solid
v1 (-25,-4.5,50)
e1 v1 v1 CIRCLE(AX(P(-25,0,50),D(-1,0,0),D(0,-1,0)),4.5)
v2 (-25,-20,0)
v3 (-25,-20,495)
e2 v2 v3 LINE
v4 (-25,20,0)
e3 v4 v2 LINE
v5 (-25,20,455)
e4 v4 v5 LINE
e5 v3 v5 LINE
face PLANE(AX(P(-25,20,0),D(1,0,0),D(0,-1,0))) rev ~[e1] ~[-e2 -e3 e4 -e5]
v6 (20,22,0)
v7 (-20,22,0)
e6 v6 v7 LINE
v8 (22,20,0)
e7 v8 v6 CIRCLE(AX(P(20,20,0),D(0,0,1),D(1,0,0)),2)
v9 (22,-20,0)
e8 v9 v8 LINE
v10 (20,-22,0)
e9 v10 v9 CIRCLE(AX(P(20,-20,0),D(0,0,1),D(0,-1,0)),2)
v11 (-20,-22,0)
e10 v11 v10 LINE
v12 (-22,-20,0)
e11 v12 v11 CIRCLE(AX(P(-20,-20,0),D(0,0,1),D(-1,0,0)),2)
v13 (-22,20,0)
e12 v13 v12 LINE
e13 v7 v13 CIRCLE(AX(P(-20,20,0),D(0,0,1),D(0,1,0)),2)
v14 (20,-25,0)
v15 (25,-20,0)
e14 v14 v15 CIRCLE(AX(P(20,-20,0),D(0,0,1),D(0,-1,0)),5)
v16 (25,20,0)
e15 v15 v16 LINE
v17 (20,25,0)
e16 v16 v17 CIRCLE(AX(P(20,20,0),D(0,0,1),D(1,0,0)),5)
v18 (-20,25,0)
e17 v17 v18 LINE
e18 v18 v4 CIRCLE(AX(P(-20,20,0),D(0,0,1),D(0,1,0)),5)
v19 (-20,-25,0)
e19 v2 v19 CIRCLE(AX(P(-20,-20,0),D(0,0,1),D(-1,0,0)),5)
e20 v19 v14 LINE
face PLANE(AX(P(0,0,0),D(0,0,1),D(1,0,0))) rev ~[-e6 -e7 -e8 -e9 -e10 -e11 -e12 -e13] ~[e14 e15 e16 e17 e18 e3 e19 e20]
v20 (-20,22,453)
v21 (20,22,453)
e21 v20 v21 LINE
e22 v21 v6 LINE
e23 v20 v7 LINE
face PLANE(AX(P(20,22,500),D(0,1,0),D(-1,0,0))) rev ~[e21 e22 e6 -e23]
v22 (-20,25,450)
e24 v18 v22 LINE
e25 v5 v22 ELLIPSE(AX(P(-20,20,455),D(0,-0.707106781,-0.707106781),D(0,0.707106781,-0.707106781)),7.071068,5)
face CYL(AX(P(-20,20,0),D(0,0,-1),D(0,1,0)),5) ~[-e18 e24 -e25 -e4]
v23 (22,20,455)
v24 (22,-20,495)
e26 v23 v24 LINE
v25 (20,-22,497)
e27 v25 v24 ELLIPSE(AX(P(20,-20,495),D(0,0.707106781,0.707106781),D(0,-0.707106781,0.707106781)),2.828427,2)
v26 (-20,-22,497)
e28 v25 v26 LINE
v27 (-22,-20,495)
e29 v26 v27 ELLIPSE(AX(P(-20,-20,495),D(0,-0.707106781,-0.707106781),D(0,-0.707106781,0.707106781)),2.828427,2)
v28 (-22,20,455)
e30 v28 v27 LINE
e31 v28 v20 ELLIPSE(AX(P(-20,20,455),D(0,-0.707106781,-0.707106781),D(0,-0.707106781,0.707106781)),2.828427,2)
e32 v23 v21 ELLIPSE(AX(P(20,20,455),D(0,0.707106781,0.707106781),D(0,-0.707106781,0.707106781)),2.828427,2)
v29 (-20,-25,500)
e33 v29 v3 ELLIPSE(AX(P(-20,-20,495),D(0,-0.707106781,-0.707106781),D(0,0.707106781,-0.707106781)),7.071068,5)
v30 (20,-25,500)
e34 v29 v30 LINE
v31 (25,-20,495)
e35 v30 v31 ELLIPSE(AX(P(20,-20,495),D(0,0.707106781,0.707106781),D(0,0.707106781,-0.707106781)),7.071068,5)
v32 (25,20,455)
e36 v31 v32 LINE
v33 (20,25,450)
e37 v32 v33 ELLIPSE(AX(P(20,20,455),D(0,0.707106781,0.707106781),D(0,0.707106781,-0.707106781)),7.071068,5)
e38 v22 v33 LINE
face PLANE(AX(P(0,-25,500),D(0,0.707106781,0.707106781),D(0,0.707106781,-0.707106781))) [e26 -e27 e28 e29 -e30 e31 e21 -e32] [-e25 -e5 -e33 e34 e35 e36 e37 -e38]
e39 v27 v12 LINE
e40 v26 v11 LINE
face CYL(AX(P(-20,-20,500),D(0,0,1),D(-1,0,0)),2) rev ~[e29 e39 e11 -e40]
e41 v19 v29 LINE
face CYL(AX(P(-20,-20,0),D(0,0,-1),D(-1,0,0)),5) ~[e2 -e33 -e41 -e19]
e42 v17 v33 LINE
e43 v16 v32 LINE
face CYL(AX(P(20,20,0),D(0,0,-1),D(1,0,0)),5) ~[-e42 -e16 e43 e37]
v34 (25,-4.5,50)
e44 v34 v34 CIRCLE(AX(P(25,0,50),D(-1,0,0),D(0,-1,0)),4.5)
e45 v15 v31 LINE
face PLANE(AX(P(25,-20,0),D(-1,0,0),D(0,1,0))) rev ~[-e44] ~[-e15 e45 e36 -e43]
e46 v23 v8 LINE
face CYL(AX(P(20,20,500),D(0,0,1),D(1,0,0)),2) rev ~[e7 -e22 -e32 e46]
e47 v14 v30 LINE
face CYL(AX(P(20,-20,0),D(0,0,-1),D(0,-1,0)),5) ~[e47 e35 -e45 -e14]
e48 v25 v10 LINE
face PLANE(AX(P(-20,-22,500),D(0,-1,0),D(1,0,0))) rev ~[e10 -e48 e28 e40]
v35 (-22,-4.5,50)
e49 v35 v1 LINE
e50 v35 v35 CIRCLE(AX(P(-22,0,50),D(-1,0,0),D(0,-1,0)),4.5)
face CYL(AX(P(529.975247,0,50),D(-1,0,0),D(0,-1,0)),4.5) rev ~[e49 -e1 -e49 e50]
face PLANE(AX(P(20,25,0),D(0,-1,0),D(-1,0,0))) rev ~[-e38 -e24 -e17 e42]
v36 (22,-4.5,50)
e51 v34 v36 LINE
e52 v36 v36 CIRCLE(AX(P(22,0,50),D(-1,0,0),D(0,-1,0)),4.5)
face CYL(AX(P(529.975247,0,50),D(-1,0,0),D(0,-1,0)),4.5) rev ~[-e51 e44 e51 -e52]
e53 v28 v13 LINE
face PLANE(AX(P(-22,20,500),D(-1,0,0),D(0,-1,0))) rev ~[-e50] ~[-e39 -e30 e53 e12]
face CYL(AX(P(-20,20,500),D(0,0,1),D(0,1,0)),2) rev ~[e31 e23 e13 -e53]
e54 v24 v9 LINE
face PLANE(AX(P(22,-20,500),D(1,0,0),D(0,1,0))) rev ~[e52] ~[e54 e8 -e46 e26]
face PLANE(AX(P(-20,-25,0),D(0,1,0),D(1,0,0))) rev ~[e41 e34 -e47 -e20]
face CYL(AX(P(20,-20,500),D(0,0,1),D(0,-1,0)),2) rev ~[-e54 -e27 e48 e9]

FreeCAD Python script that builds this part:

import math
import FreeCAD as App
import Part
import Sketcher
Q = App.Units.Quantity

doc = App.newDocument("Part")
body = doc.addObject("PartDesign::Body", "Body")

sketch1 = doc.addObject("Sketcher::SketchObject", "Sketch")
body.addObject(sketch1)
sketch1.AttachmentSupport = (doc.XY_Plane, [""])
sketch1.MapMode = "FlatFace"
sketch1.addGeometry(Part.ArcOfCircle(Part.Circle(App.Vector(20, 20, 0), App.Vector(0, 0, 1), 5), math.radians(0), math.radians(90)), False)
sketch1.addGeometry(Part.LineSegment(App.Vector(20, 25, 0), App.Vector(-20, 25, 0)), False)
sketch1.addGeometry(Part.ArcOfCircle(Part.Circle(App.Vector(-20, 20, 0), App.Vector(0, 0, 1), 5), math.radians(90), math.radians(180)), False)
sketch1.addGeometry(Part.LineSegment(App.Vector(-25, 20, 0), App.Vector(-25, -20, 0)), False)
sketch1.addGeometry(Part.ArcOfCircle(Part.Circle(App.Vector(-20, -20, 0), App.Vector(0, 0, 1), 5), math.radians(180), math.radians(270)), False)
sketch1.addGeometry(Part.LineSegment(App.Vector(-20, -25, 0), App.Vector(20, -25, 0)), False)
sketch1.addGeometry(Part.ArcOfCircle(Part.Circle(App.Vector(20, -20, 0), App.Vector(0, 0, 1), 5), math.radians(-90), math.radians(0)), False)
sketch1.addGeometry(Part.LineSegment(App.Vector(25, -20, 0), App.Vector(25, 20, 0)), False)
sketch1.addConstraint(Sketcher.Constraint("Tangent", 0, 2, 1, 1))
sketch1.addConstraint(Sketcher.Constraint("Tangent", 1, 2, 2, 1))
sketch1.addConstraint(Sketcher.Constraint("Tangent", 2, 2, 3, 1))
sketch1.addConstraint(Sketcher.Constraint("Tangent", 3, 2, 4, 1))
sketch1.addConstraint(Sketcher.Constraint("Tangent", 4, 2, 5, 1))
sketch1.addConstraint(Sketcher.Constraint("Tangent", 5, 2, 6, 1))
sketch1.addConstraint(Sketcher.Constraint("Tangent", 6, 2, 7, 1))
sketch1.addConstraint(Sketcher.Constraint("Tangent", 7, 2, 0, 1))
sketch1.addConstraint(Sketcher.Constraint("Horizontal", 1))
sketch1.addConstraint(Sketcher.Constraint("Vertical", 3))
sketch1.addConstraint(Sketcher.Constraint("Horizontal", 5))
sketch1.addConstraint(Sketcher.Constraint("Vertical", 7))
sketch1.addConstraint(Sketcher.Constraint("Equal", 0, 2))
sketch1.addConstraint(Sketcher.Constraint("Equal", 2, 4))
sketch1.addConstraint(Sketcher.Constraint("Equal", 4, 6))
sketch1.addConstraint(Sketcher.Constraint("Symmetric", 0, 3, 4, 3, -1, 1))
sketch1.addConstraint(Sketcher.Constraint("Equal", 5, 3))
sketch1.addConstraint(Sketcher.Constraint("Radius", 0, Q("5 mm")))
sketch1.addConstraint(Sketcher.Constraint("DistanceX", 1, 2, 1, 1, Q("40 mm")))
pad1 = doc.addObject("PartDesign::Pad", "Pad")
body.addObject(pad1)
pad1.Profile = sketch1
pad1.Length = 500

sketch2 = doc.addObject("Sketcher::SketchObject", "Sketch001")
body.addObject(sketch2)
sketch2.AttachmentSupport = (doc.XY_Plane, [""])
sketch2.MapMode = "FlatFace"
sketch2.AttachmentOffset = App.Placement(App.Vector(0, 0, 500), App.Rotation())
sketch2.addGeometry(Part.ArcOfCircle(Part.Circle(App.Vector(-20, -20, 0), App.Vector(0, 0, 1), 2), math.radians(180), math.radians(270)), False)
sketch2.addGeometry(Part.LineSegment(App.Vector(-20, -22, 0), App.Vector(20, -22, 0)), False)
sketch2.addGeometry(Part.ArcOfCircle(Part.Circle(App.Vector(20, -20, 0), App.Vector(0, 0, 1), 2), math.radians(-90), math.radians(0)), False)
sketch2.addGeometry(Part.LineSegment(App.Vector(22, -20, 0), App.Vector(22, 20, 0)), False)
sketch2.addGeometry(Part.ArcOfCircle(Part.Circle(App.Vector(20, 20, 0), App.Vector(0, 0, 1), 2), math.radians(0), math.radians(90)), False)
sketch2.addGeometry(Part.LineSegment(App.Vector(20, 22, 0), App.Vector(-20, 22, 0)), False)
sketch2.addGeometry(Part.ArcOfCircle(Part.Circle(App.Vector(-20, 20, 0), App.Vector(0, 0, 1), 2), math.radians(90), math.radians(180)), False)
sketch2.addGeometry(Part.LineSegment(App.Vector(-22, 20, 0), App.Vector(-22, -20, 0)), False)
sketch2.addConstraint(Sketcher.Constraint("Tangent", 0, 2, 1, 1))
sketch2.addConstraint(Sketcher.Constraint("Tangent", 1, 2, 2, 1))
sketch2.addConstraint(Sketcher.Constraint("Tangent", 2, 2, 3, 1))
sketch2.addConstraint(Sketcher.Constraint("Tangent", 3, 2, 4, 1))
sketch2.addConstraint(Sketcher.Constraint("Tangent", 4, 2, 5, 1))
sketch2.addConstraint(Sketcher.Constraint("Tangent", 5, 2, 6, 1))
sketch2.addConstraint(Sketcher.Constraint("Tangent", 6, 2, 7, 1))
sketch2.addConstraint(Sketcher.Constraint("Tangent", 7, 2, 0, 1))
sketch2.addConstraint(Sketcher.Constraint("Horizontal", 1))
sketch2.addConstraint(Sketcher.Constraint("Vertical", 3))
sketch2.addConstraint(Sketcher.Constraint("Horizontal", 5))
sketch2.addConstraint(Sketcher.Constraint("Vertical", 7))
sketch2.addConstraint(Sketcher.Constraint("Equal", 0, 2))
sketch2.addConstraint(Sketcher.Constraint("Equal", 2, 4))
sketch2.addConstraint(Sketcher.Constraint("Equal", 4, 6))
sketch2.addConstraint(Sketcher.Constraint("Symmetric", 0, 3, 4, 3, -1, 1))
sketch2.addConstraint(Sketcher.Constraint("Equal", 5, 3))
sketch2.addConstraint(Sketcher.Constraint("Radius", 0, Q("2 mm")))
sketch2.addConstraint(Sketcher.Constraint("DistanceX", 1, 1, 1, 2, Q("40 mm")))
pocket1 = doc.addObject("PartDesign::Pocket", "Pocket")
body.addObject(pocket1)
pocket1.Profile = sketch2
pocket1.Type = "ThroughAll"

sketch3 = doc.addObject("Sketcher::SketchObject", "Sketch002")
body.addObject(sketch3)
sketch3.AttachmentSupport = (doc.YZ_Plane, [""])
sketch3.MapMode = "FlatFace"
sketch3.addGeometry(Part.LineSegment(App.Vector(25, 500, 0), App.Vector(-25, 500, 0)), False)
sketch3.addGeometry(Part.LineSegment(App.Vector(-25, 500, 0), App.Vector(25, 450, 0)), False)
sketch3.addGeometry(Part.LineSegment(App.Vector(25, 450, 0), App.Vector(25, 500, 0)), False)
sketch3.addConstraint(Sketcher.Constraint("Coincident", 0, 2, 1, 1))
sketch3.addConstraint(Sketcher.Constraint("Coincident", 1, 2, 2, 1))
sketch3.addConstraint(Sketcher.Constraint("Coincident", 2, 2, 0, 1))
sketch3.addConstraint(Sketcher.Constraint("Horizontal", 0))
sketch3.addConstraint(Sketcher.Constraint("Vertical", 2))
sketch3.addConstraint(Sketcher.Constraint("Equal", 0, 2))
sketch3.addConstraint(Sketcher.Constraint("DistanceX", 0, 2, 0, 1, Q("50 mm")))
sketch3.addConstraint(Sketcher.Constraint("DistanceX", 0, 2, -1, 1, Q("25 mm")))
sketch3.addConstraint(Sketcher.Constraint("DistanceY", -1, 1, 0, 2, Q("500 mm")))
pocket2 = doc.addObject("PartDesign::Pocket", "Pocket001")
body.addObject(pocket2)
pocket2.Profile = sketch3
pocket2.Type = "ThroughAll"
pocket2.Midplane = True

sketch4 = doc.addObject("Sketcher::SketchObject", "Sketch003")
body.addObject(sketch4)
sketch4.AttachmentSupport = (doc.YZ_Plane, [""])
sketch4.MapMode = "FlatFace"
sketch4.AttachmentOffset = App.Placement(App.Vector(0, 0, 25), App.Rotation())
sketch4.addGeometry(Part.Circle(App.Vector(0, 50, 0), App.Vector(0, 0, 1), 4.5), False)
sketch4.addConstraint(Sketcher.Constraint("PointOnObject", 0, 3, -2))
sketch4.addConstraint(Sketcher.Constraint("Diameter", 0, Q("9 mm")))
sketch4.addConstraint(Sketcher.Constraint("DistanceY", -1, 1, 0, 3, Q("50 mm")))
doc.recompute()
hole = doc.addObject("PartDesign::Hole", "Hole")
body.addObject(hole)
hole.Profile = sketch4
hole.ThreadType = "None"
hole.Diameter = 9
hole.DepthType = "ThroughAll"

doc.recompute()
